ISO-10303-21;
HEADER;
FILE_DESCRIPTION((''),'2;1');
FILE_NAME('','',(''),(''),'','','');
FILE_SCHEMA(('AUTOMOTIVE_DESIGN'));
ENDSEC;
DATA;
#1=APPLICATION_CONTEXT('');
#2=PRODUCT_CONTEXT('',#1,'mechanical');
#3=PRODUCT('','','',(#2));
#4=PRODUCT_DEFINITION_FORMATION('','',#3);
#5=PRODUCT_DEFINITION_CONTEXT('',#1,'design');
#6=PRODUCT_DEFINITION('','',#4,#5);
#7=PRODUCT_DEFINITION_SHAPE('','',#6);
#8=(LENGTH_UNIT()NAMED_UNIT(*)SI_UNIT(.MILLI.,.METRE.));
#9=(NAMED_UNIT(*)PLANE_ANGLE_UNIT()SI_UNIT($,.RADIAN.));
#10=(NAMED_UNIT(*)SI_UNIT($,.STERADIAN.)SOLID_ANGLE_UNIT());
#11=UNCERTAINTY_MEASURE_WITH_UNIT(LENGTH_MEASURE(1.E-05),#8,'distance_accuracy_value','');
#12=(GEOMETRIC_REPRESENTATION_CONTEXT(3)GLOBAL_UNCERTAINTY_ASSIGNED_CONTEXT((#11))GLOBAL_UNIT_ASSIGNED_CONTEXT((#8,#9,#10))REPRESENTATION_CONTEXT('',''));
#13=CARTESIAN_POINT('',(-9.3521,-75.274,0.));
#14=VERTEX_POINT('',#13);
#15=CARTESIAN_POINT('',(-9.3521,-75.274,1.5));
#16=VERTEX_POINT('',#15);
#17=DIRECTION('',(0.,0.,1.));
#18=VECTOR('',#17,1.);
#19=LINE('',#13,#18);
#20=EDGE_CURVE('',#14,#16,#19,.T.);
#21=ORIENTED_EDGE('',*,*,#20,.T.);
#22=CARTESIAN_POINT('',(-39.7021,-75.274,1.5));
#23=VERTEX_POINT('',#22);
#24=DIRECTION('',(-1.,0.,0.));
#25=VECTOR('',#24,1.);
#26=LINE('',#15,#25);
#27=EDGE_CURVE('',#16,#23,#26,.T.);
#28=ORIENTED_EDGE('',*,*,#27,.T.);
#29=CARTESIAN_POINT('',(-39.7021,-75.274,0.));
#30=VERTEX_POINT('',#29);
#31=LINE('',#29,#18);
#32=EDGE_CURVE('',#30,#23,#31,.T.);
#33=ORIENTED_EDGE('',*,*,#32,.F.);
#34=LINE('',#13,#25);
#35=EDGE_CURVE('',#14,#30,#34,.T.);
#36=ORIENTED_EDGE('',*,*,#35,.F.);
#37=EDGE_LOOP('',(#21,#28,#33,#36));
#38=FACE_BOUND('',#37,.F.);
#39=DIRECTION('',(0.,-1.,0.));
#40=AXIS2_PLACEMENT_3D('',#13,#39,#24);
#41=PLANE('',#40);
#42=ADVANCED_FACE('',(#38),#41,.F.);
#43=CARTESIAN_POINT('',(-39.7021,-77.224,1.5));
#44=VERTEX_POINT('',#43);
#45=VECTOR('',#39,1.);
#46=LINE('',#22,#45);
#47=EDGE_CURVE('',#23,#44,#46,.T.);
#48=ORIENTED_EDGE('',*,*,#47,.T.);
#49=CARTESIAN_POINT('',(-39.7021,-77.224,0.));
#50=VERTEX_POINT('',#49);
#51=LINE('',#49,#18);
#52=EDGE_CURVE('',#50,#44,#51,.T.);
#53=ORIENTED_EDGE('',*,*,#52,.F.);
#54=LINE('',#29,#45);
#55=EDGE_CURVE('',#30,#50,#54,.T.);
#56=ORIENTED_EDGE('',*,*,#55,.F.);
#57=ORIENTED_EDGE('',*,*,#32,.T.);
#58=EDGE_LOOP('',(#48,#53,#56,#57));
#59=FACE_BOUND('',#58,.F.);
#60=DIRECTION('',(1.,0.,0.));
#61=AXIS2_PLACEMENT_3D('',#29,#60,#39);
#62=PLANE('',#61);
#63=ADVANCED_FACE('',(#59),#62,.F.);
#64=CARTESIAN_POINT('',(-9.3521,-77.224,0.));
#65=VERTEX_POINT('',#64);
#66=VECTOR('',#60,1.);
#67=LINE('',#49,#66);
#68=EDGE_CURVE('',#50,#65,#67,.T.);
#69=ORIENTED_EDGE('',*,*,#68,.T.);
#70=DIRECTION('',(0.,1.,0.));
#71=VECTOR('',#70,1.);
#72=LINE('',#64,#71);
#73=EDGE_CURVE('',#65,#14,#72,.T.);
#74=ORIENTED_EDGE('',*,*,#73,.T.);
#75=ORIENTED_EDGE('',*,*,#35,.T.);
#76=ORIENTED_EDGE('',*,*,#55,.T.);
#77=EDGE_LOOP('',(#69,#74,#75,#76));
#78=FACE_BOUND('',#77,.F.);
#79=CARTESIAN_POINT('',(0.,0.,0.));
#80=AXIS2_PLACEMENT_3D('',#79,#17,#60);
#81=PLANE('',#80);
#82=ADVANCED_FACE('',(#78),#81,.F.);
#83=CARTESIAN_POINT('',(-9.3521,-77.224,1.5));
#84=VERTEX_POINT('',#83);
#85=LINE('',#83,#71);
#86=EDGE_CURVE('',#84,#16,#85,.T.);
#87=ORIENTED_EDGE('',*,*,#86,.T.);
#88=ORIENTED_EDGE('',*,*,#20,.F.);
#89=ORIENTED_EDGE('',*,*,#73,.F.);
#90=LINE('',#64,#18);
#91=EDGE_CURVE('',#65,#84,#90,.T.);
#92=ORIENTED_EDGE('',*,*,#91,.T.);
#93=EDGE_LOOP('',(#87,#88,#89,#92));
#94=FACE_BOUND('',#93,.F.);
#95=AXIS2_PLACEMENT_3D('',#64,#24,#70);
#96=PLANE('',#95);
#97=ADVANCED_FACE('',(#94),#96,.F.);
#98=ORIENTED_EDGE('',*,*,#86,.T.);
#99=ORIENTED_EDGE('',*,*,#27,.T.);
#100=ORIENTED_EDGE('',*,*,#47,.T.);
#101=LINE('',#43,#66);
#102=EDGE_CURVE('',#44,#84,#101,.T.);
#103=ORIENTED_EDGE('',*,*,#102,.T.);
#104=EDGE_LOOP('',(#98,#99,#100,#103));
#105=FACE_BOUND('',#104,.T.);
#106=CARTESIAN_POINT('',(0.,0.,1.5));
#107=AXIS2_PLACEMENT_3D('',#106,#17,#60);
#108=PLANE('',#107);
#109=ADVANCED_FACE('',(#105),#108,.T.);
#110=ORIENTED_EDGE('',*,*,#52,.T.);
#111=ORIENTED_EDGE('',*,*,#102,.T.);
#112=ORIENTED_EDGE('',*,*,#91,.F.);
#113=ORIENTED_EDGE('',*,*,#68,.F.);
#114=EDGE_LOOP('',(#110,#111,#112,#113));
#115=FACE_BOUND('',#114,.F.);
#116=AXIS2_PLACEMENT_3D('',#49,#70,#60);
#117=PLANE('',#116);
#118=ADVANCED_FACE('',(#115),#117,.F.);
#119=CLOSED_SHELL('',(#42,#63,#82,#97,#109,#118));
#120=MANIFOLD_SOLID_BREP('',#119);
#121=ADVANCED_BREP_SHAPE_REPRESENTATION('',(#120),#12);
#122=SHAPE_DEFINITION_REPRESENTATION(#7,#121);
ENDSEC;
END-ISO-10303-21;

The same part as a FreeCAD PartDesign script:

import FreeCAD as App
import Part
import Sketcher

V = App.Vector
Q = App.Units.Quantity

doc = App.newDocument("Part")
body = doc.addObject("PartDesign::Body", "Body")

sketch1 = body.newObject("Sketcher::SketchObject", "Sketch")
sketch1.AttachmentSupport = (doc.getObject("XY_Plane"), [""])
sketch1.MapMode = "FlatFace"
sketch1.addGeometry([
    Part.LineSegment(V(-39.7021, -75.274, 0), V(-39.7021, -77.224, 0)),
    Part.LineSegment(V(-39.7021, -77.224, 0), V(-9.3521, -77.224, 0)),
    Part.LineSegment(V(-9.3521, -77.224, 0), V(-9.3521, -75.274, 0)),
    Part.LineSegment(V(-9.3521, -75.274, 0), V(-39.7021, -75.274, 0)),
], False)
sketch1.addConstraint([
    Sketcher.Constraint("Coincident", 0, 2, 1, 1),
    Sketcher.Constraint("Coincident", 1, 2, 2, 1),
    Sketcher.Constraint("Coincident", 2, 2, 3, 1),
    Sketcher.Constraint("Coincident", 3, 2, 0, 1),
    Sketcher.Constraint("Vertical", 0),
    Sketcher.Constraint("Horizontal", 1),
    Sketcher.Constraint("Vertical", 2),
    Sketcher.Constraint("Horizontal", 3),
    Sketcher.Constraint("DistanceX", 1, 1, 1, 2, Q("30.35 mm")),
    Sketcher.Constraint("DistanceY", 0, 2, 0, 1, Q("1.95 mm")),
    Sketcher.Constraint("DistanceX", 0, 2, -1, 1, Q("39.702 mm")),
    Sketcher.Constraint("DistanceY", 0, 2, -1, 1, Q("77.224 mm")),
])
pad1 = body.newObject("PartDesign::Pad", "Pad")
pad1.Profile = sketch1
pad1.Length = 1.5

doc.recompute()
